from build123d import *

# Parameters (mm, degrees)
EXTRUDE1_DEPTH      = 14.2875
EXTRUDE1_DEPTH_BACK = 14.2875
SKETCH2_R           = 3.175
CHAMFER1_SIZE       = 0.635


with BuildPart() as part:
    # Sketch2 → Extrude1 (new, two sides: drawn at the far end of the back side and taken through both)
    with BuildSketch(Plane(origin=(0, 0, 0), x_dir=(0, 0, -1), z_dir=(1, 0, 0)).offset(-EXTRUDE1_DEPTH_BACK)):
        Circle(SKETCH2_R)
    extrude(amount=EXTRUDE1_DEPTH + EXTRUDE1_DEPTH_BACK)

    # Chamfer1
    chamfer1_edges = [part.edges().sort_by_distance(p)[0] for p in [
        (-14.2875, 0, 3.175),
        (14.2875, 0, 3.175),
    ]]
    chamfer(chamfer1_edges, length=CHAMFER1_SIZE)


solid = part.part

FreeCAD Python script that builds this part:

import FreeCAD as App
import Part
import Sketcher
Q = App.Units.Quantity


def edges_at(feature, points):
    """Names of the edges that pass closest to the given points."""
    edges = feature.Shape.Edges
    near = lambda p: min(range(len(edges)), key=lambda i: edges[i].distToShape(Part.Vertex(*p))[0])
    return sorted({f"Edge{near(p) + 1}" for p in points})

doc = App.newDocument("Part")
body = doc.addObject("PartDesign::Body", "Body")

# Sketch on YZ plane
sketch1 = body.newObject("Sketcher::SketchObject", "Sketch")
sketch1.AttachmentSupport = (doc.getObject("YZ_Plane"), [""])
sketch1.MapMode = "FlatFace"
sketch1.addGeometry(Part.Circle(App.Vector(0, 0, 0), App.Vector(0, 0, 1), 3.2), False)
sketch1.addConstraint([
    Sketcher.Constraint("Coincident", 0, 3, -1, 1),
    Sketcher.Constraint("Diameter", 0, Q("0.25 in")),
])
pad1 = body.newObject("PartDesign::Pad", "Pad")
pad1.Profile = sketch1
pad1.Type = "TwoLengths"
pad1.Length = Q("0.5625 in")
pad1.Length2 = Q("0.5625 in")
doc.recompute()

chamfer = body.newObject("PartDesign::Chamfer", "Chamfer")
chamfer.Base = (pad1, edges_at(pad1, [(-14.287, 0, 3.175), (14.287, 0, 3.175)]))
chamfer.Size = Q("0.025 in")

doc.recompute()
